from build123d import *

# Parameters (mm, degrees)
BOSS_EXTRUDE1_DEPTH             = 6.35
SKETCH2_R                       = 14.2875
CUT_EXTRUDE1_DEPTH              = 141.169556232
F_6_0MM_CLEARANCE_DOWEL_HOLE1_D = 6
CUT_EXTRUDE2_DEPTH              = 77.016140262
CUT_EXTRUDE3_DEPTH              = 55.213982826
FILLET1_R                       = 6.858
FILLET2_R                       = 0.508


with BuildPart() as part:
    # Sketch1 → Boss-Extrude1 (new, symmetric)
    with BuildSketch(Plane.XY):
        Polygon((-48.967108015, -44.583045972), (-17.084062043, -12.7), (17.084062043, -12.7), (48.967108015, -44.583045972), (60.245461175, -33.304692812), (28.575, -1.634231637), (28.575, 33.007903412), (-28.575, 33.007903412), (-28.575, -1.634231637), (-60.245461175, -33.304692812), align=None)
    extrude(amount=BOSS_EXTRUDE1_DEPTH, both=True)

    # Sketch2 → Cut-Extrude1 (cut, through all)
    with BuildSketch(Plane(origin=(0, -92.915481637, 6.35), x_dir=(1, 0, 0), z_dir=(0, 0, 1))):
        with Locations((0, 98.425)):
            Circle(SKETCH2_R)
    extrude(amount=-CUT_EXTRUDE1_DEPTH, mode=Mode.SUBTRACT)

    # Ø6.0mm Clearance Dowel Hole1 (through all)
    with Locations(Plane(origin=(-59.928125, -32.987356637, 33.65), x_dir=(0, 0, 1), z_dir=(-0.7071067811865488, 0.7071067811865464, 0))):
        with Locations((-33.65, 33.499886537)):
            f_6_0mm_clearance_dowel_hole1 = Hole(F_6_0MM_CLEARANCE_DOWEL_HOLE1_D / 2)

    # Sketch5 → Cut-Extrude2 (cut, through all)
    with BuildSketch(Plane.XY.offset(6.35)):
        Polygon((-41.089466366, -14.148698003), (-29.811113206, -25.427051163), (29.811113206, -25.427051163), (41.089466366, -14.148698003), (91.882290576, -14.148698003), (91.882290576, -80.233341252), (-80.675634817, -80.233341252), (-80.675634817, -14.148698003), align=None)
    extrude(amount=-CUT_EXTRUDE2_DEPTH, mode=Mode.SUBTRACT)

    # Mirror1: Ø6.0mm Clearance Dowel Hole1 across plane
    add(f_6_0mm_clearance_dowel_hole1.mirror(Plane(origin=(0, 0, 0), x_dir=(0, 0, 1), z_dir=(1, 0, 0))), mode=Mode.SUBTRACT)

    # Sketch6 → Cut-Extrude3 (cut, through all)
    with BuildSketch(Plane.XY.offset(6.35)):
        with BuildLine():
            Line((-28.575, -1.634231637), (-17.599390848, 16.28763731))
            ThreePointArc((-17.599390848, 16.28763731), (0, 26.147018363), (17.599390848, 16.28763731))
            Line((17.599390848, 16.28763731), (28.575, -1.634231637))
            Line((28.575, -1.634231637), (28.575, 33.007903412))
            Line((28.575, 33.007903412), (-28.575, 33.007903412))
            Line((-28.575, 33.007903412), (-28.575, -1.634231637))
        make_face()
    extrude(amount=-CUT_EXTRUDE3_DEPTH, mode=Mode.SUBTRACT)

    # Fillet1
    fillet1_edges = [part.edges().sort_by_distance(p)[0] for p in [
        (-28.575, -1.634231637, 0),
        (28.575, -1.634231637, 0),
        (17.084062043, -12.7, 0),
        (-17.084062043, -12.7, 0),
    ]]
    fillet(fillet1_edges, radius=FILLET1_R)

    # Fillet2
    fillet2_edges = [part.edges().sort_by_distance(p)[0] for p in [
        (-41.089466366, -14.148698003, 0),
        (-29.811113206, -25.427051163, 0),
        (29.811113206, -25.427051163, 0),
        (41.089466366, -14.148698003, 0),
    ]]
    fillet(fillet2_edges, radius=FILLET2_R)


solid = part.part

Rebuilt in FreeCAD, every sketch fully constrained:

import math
import FreeCAD as App
import Part
import Sketcher

V = App.Vector
Q = App.Units.Quantity


def edges_at(feature, points):
    """Names of the edges that pass closest to the given points."""
    edges = feature.Shape.Edges
    near = lambda p: min(range(len(edges)), key=lambda i: edges[i].distToShape(Part.Vertex(*p))[0])
    return sorted({f"Edge{near(p) + 1}" for p in points})

doc = App.newDocument("Part")
body = doc.addObject("PartDesign::Body", "Body")

# Sketch on XY plane
sketch1 = doc.addObject("Sketcher::SketchObject", "Sketch")
body.addObject(sketch1)
sketch1.AttachmentSupport = (doc.XY_Plane, [""])
sketch1.MapMode = "FlatFace"
sketch1.addGeometry(Part.LineSegment(V(-49, -45, 0), V(-17, -13, 0)), False)
sketch1.addGeometry(Part.LineSegment(V(-17, -13, 0), V(17, -13, 0)), False)
sketch1.addGeometry(Part.LineSegment(V(17, -13, 0), V(49, -45, 0)), False)
sketch1.addGeometry(Part.LineSegment(V(49, -45, 0), V(60, -33, 0)), False)
sketch1.addGeometry(Part.LineSegment(V(60, -33, 0), V(29, -2, 0)), False)
sketch1.addGeometry(Part.LineSegment(V(29, -2, 0), V(29, 33, 0)), False)
sketch1.addGeometry(Part.LineSegment(V(29, 33, 0), V(-29, 33, 0)), False)
sketch1.addGeometry(Part.LineSegment(V(-29, 33, 0), V(-29, -2, 0)), False)
sketch1.addGeometry(Part.LineSegment(V(-29, -2, 0), V(-60, -33, 0)), False)
sketch1.addGeometry(Part.LineSegment(V(-60, -33, 0), V(-49, -45, 0)), False)
sketch1.addConstraint(Sketcher.Constraint("Coincident", 0, 2, 1, 1))
sketch1.addConstraint(Sketcher.Constraint("Coincident", 1, 2, 2, 1))
sketch1.addConstraint(Sketcher.Constraint("Coincident", 2, 2, 3, 1))
sketch1.addConstraint(Sketcher.Constraint("Coincident", 3, 2, 4, 1))
sketch1.addConstraint(Sketcher.Constraint("Coincident", 4, 2, 5, 1))
sketch1.addConstraint(Sketcher.Constraint("Coincident", 5, 2, 6, 1))
sketch1.addConstraint(Sketcher.Constraint("Coincident", 6, 2, 7, 1))
sketch1.addConstraint(Sketcher.Constraint("Coincident", 7, 2, 8, 1))
sketch1.addConstraint(Sketcher.Constraint("Coincident", 8, 2, 9, 1))
sketch1.addConstraint(Sketcher.Constraint("Coincident", 9, 2, 0, 1))
sketch1.addConstraint(Sketcher.Constraint("Horizontal", 1))
sketch1.addConstraint(Sketcher.Constraint("Vertical", 5))
sketch1.addConstraint(Sketcher.Constraint("Horizontal", 6))
sketch1.addConstraint(Sketcher.Constraint("Vertical", 7))
sketch1.addConstraint(Sketcher.Constraint("Symmetric", 4, 2, 7, 2, -2))
sketch1.addConstraint(Sketcher.Constraint("Symmetric", 3, 2, 8, 2, -2))
sketch1.addConstraint(Sketcher.Constraint("Symmetric", 2, 2, 9, 2, -2))
sketch1.addConstraint(Sketcher.Constraint("Perpendicular", 0, 2))
sketch1.addConstraint(Sketcher.Constraint("Perpendicular", 2, 3))
sketch1.addConstraint(Sketcher.Constraint("Perpendicular", 3, 4))
sketch1.addConstraint(Sketcher.Constraint("Perpendicular", 4, 8))
sketch1.addConstraint(Sketcher.Constraint("DistanceX", 6, 2, 6, 1, Q("2.25 in")))
sketch1.addConstraint(Sketcher.Constraint("DistanceY", 0, 2, -1, 1, Q("0.5 in")))
sketch1.addConstraint(Sketcher.Constraint("Distance", 3, 15.95))
sketch1.addConstraint(Sketcher.Constraint("DistanceX", 1, 2, 3, 2, 43.161399))
sketch1.addConstraint(Sketcher.Constraint("DistanceX", 1, 1, 1, 2, 34.168124))
sketch1.addConstraint(Sketcher.Constraint("DistanceY", 5, 1, 5, 2, 34.642135))
pad1 = doc.addObject("PartDesign::Pad", "Pad")
body.addObject(pad1)
pad1.Profile = sketch1
pad1.Length = Q("0.5 in")
pad1.Midplane = True

# Sketch on XY plane
sketch2 = doc.addObject("Sketcher::SketchObject", "Sketch001")
body.addObject(sketch2)
sketch2.AttachmentSupport = (doc.XY_Plane, [""])
sketch2.MapMode = "FlatFace"
sketch2.AttachmentOffset = App.Placement(V(0, 0, 0.25 * 25.4), App.Rotation())
sketch2.addGeometry(Part.Circle(V(0, 6, 0), V(0, 0, 1), 14), False)
sketch2.addConstraint(Sketcher.Constraint("PointOnObject", 0, 3, -2))
sketch2.addConstraint(Sketcher.Constraint("Diameter", 0, Q("1.125 in")))
sketch2.addConstraint(Sketcher.Constraint("DistanceY", -1, 1, 0, 3, 5.509518))
pocket1 = doc.addObject("PartDesign::Pocket", "Pocket")
body.addObject(pocket1)
pocket1.Profile = sketch2
pocket1.Type = "ThroughAll"

# Sketch on an angled plane
sketch3 = doc.addObject("Sketcher::SketchObject", "Sketch002")
body.addObject(sketch3)
sketch3.Placement = App.Placement(V(-13.470384, 13.470384, 0), App.Rotation(V(0, 0, 1), V(0.707106781, 0.707106781, 0), V(-0.707106781, 0.707106781, 0), "ZXY"))
sketch3.addGeometry(Part.Circle(V(0, -32.2, 0), V(0, 0, 1), 3), False)
sketch3.addConstraint(Sketcher.Constraint("PointOnObject", 0, 3, -2))
sketch3.addConstraint(Sketcher.Constraint("Diameter", 0, 6.0))
sketch3.addConstraint(Sketcher.Constraint("DistanceY", 0, 3, -1, 1, 32.201281))
doc.recompute()
hole = doc.addObject("PartDesign::Hole", "Hole")
body.addObject(hole)
hole.Profile = sketch3
hole.ThreadType = "None"
hole.Diameter = 6
hole.DepthType = "ThroughAll"

# Sketch on XY plane
sketch4 = doc.addObject("Sketcher::SketchObject", "Sketch003")
body.addObject(sketch4)
sketch4.AttachmentSupport = (doc.XY_Plane, [""])
sketch4.MapMode = "FlatFace"
sketch4.AttachmentOffset = App.Placement(V(0, 0, 0.25 * 25.4), App.Rotation())
sketch4.addGeometry(Part.LineSegment(V(-30, -25, 0), V(-41, -14, 0)), False)
sketch4.addGeometry(Part.LineSegment(V(-41, -14, 0), V(-81, -14, 0)), False)
sketch4.addGeometry(Part.LineSegment(V(-81, -14, 0), V(-81, -80, 0)), False)
sketch4.addGeometry(Part.LineSegment(V(-81, -80, 0), V(92, -80, 0)), False)
sketch4.addGeometry(Part.LineSegment(V(92, -80, 0), V(92, -14, 0)), False)
sketch4.addGeometry(Part.LineSegment(V(92, -14, 0), V(41, -14, 0)), False)
sketch4.addGeometry(Part.LineSegment(V(41, -14, 0), V(30, -25, 0)), False)
sketch4.addGeometry(Part.LineSegment(V(30, -25, 0), V(-30, -25, 0)), False)
sketch4.addConstraint(Sketcher.Constraint("Coincident", 0, 2, 1, 1))
sketch4.addConstraint(Sketcher.Constraint("Coincident", 1, 2, 2, 1))
sketch4.addConstraint(Sketcher.Constraint("Coincident", 2, 2, 3, 1))
sketch4.addConstraint(Sketcher.Constraint("Coincident", 3, 2, 4, 1))
sketch4.addConstraint(Sketcher.Constraint("Coincident", 4, 2, 5, 1))
sketch4.addConstraint(Sketcher.Constraint("Coincident", 5, 2, 6, 1))
sketch4.addConstraint(Sketcher.Constraint("Coincident", 6, 2, 7, 1))
sketch4.addConstraint(Sketcher.Constraint("Coincident", 7, 2, 0, 1))
sketch4.addConstraint(Sketcher.Constraint("Horizontal", 1))
sketch4.addConstraint(Sketcher.Constraint("Vertical", 2))
sketch4.addConstraint(Sketcher.Constraint("Horizontal", 3))
sketch4.addConstraint(Sketcher.Constraint("Vertical", 4))
sketch4.addConstraint(Sketcher.Constraint("Horizontal", 5))
sketch4.addConstraint(Sketcher.Constraint("Horizontal", 7))
sketch4.addConstraint(Sketcher.Constraint("Symmetric", 0, 2, 5, 2, -2))
sketch4.addConstraint(Sketcher.Constraint("Perpendicular", 0, 6))
sketch4.addConstraint(Sketcher.Constraint("Equal", 0, 6))
sketch4.addConstraint(Sketcher.Constraint("Distance", 0, 15.95))
sketch4.addConstraint(Sketcher.Constraint("DistanceX", 1, 2, 1, 1, 39.586168))
sketch4.addConstraint(Sketcher.Constraint("DistanceY", 0, 2, -1, 1, 14.148698))
sketch4.addConstraint(Sketcher.Constraint("DistanceX", 1, 2, 5, 2, 121.765101))
sketch4.addConstraint(Sketcher.Constraint("DistanceX", 3, 1, 3, 2, 172.557925))
sketch4.addConstraint(Sketcher.Constraint("DistanceY", 2, 2, 2, 1, 66.084643))
pocket2 = doc.addObject("PartDesign::Pocket", "Pocket001")
body.addObject(pocket2)
pocket2.Profile = sketch4
pocket2.Type = "ThroughAll"
doc.recompute()

mirrored = doc.addObject("PartDesign::Mirrored", "Mirrored")
body.addObject(mirrored)
mirrored.Originals = [hole]
mirrored.MirrorPlane = (doc.YZ_Plane, [""])
body.Tip = mirrored

# Sketch on XY plane
sketch5 = doc.addObject("Sketcher::SketchObject", "Sketch004")
body.addObject(sketch5)
sketch5.AttachmentSupport = (doc.XY_Plane, [""])
sketch5.MapMode = "FlatFace"
sketch5.AttachmentOffset = App.Placement(V(0, 0, 0.25 * 25.4), App.Rotation())
sketch5.addGeometry(Part.LineSegment(V(-29, -2, 0), V(-18, 16, 0)), False)
sketch5.addGeometry(Part.ArcOfCircle(Part.Circle(V(0, 6, 0), V(0, 0, 1), 21), math.radians(31), math.radians(149)), False)
sketch5.addGeometry(Part.LineSegment(V(18, 16, 0), V(29, -2, 0)), False)
sketch5.addGeometry(Part.LineSegment(V(29, -2, 0), V(29, 33, 0)), False)
sketch5.addGeometry(Part.LineSegment(V(29, 33, 0), V(-29, 33, 0)), False)
sketch5.addGeometry(Part.LineSegment(V(-29, 33, 0), V(-29, -2, 0)), False)
sketch5.addConstraint(Sketcher.Constraint("Tangent", 0, 2, 1, 2))
sketch5.addConstraint(Sketcher.Constraint("Tangent", 1, 1, 2, 1))
sketch5.addConstraint(Sketcher.Constraint("Coincident", 2, 2, 3, 1))
sketch5.addConstraint(Sketcher.Constraint("Coincident", 3, 2, 4, 1))
sketch5.addConstraint(Sketcher.Constraint("Coincident", 4, 2, 5, 1))
sketch5.addConstraint(Sketcher.Constraint("Coincident", 5, 2, 0, 1))
sketch5.addConstraint(Sketcher.Constraint("Vertical", 3))
sketch5.addConstraint(Sketcher.Constraint("Horizontal", 4))
sketch5.addConstraint(Sketcher.Constraint("Vertical", 5))
sketch5.addConstraint(Sketcher.Constraint("Symmetric", 0, 2, 1, 1, -2))
sketch5.addConstraint(Sketcher.Constraint("Horizontal", 2, 2, 5, 2))
sketch5.addConstraint(Sketcher.Constraint("Radius", 1, Q("0.8125 in")))
sketch5.addConstraint(Sketcher.Constraint("DistanceX", 4, 2, 4, 1, Q("2.25 in")))
sketch5.addConstraint(Sketcher.Constraint("DistanceY", 2, 2, 1, 3, Q("0.28125 in")))
sketch5.addConstraint(Sketcher.Constraint("DistanceY", 3, 1, 3, 2, 34.642135))
sketch5.addConstraint(Sketcher.Constraint("DistanceY", -1, 1, 1, 3, 5.509518))
pocket3 = doc.addObject("PartDesign::Pocket", "Pocket002")
body.addObject(pocket3)
pocket3.Profile = sketch5
pocket3.Type = "ThroughAll"
doc.recompute()

fillet = doc.addObject("PartDesign::Fillet", "Fillet")
body.addObject(fillet)
fillet.Base = (pocket3, edges_at(pocket3, [
    (-28.575, -1.634, 0),
    (28.575, -1.634, 0),
    (17.084, -12.7, 0),
    (-17.084, -12.7, 0),
]))
fillet.Radius = Q("0.27 in")
doc.recompute()

fillet2 = doc.addObject("PartDesign::Fillet", "Fillet001")
body.addObject(fillet2)
fillet2.Base = (fillet, edges_at(fillet, [
    (-41.089, -14.149, 0),
    (-29.811, -25.427, 0),
    (29.811, -25.427, 0),
    (41.089, -14.149, 0),
]))
fillet2.Radius = Q("0.02 in")

doc.recompute()
